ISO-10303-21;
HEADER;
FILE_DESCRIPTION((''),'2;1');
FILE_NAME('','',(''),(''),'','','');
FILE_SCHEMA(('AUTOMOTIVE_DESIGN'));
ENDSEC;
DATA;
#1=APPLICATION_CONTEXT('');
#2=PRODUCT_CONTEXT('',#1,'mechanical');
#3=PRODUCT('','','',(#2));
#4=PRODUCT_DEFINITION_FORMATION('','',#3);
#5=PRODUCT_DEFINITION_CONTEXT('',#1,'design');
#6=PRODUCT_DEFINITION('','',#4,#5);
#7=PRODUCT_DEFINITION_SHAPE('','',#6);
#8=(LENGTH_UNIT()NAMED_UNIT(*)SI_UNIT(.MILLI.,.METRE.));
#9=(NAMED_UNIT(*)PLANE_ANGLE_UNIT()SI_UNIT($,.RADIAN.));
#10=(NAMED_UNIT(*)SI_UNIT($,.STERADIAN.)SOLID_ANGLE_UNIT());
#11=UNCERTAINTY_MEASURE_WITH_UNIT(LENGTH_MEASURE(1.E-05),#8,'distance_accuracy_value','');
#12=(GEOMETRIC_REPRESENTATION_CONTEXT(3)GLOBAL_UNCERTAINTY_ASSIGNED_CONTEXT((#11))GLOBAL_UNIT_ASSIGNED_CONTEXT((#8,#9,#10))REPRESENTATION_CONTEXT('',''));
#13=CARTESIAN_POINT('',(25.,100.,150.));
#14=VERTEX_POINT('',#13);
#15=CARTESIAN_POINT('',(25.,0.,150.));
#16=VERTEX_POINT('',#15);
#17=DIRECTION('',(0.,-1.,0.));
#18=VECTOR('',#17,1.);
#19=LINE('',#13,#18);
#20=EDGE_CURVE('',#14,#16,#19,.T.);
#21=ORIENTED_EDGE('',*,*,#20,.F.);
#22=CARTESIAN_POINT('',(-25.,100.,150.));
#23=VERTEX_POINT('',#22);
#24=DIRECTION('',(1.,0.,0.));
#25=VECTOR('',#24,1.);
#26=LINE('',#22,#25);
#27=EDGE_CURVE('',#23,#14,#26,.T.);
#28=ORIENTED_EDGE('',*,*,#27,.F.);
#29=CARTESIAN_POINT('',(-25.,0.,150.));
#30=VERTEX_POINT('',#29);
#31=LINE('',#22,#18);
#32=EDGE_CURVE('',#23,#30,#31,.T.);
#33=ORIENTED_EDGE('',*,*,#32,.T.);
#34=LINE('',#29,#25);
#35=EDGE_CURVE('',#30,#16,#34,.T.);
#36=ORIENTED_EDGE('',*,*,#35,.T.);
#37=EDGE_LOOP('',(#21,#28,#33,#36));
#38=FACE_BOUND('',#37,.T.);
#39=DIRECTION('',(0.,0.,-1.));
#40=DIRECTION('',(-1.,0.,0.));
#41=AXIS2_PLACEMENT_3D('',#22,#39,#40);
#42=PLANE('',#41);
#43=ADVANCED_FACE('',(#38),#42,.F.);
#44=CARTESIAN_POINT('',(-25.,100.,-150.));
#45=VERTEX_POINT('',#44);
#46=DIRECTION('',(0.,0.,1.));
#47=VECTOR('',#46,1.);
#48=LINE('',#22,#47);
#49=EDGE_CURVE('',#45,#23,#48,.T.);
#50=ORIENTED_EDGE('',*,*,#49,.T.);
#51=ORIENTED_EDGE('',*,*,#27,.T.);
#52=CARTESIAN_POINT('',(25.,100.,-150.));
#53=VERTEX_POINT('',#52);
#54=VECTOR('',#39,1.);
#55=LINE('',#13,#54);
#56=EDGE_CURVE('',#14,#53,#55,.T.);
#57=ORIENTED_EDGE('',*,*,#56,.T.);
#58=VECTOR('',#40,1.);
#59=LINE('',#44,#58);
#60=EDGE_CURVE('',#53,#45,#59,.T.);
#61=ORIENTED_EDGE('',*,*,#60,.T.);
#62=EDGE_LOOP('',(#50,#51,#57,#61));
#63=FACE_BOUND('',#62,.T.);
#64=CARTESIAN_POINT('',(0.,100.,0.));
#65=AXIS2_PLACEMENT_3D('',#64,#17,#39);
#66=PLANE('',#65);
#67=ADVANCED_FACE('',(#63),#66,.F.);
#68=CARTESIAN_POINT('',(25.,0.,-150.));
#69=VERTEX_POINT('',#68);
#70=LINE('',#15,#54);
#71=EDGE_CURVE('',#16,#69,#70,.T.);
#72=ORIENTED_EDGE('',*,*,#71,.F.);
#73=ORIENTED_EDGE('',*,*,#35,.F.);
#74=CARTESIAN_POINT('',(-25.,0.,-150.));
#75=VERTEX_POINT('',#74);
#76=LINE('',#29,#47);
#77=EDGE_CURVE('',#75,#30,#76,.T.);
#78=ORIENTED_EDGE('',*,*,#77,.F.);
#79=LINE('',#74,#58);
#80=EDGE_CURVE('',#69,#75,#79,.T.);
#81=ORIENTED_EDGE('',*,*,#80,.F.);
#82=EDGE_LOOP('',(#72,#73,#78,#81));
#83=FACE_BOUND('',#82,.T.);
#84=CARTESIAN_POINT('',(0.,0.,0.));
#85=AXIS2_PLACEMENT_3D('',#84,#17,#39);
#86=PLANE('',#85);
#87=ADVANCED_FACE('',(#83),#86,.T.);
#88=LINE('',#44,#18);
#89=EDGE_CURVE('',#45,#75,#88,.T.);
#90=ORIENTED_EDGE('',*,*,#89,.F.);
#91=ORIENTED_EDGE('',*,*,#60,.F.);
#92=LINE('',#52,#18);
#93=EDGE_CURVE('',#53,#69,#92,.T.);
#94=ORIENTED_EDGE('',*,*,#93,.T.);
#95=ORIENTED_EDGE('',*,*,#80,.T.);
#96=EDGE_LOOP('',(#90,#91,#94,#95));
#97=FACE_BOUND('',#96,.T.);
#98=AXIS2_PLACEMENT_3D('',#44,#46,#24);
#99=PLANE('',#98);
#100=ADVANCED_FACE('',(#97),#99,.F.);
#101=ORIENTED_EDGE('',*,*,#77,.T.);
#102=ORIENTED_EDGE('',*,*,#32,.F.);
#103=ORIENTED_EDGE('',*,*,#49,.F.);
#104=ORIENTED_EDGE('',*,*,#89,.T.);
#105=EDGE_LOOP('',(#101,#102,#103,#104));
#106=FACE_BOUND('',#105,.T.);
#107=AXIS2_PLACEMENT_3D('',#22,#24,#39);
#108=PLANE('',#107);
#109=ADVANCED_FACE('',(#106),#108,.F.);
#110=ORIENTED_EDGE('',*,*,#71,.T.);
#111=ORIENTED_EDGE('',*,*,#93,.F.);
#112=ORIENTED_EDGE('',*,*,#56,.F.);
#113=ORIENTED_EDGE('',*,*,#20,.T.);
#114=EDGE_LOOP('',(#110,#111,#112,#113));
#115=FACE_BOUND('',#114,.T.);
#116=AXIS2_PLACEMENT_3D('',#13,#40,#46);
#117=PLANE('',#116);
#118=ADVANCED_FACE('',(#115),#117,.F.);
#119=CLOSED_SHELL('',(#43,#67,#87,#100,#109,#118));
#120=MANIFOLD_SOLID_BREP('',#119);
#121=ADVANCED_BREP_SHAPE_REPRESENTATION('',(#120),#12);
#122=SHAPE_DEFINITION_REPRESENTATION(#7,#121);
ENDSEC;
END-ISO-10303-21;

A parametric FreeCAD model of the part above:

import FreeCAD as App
import Part
import Sketcher

V = App.Vector

doc = App.newDocument("Part")
body = doc.addObject("PartDesign::Body", "Body")

sketch1 = body.newObject("Sketcher::SketchObject", "Sketch")
sketch1.AttachmentSupport = (doc.getObject("XZ_Plane"), [""])
sketch1.MapMode = "FlatFace"
sketch1.addGeometry(Part.LineSegment(V(-25, -150, 0), V(-25, 150, 0)), False)
sketch1.addGeometry(Part.LineSegment(V(-25, 150, 0), V(25, 150, 0)), False)
sketch1.addGeometry(Part.LineSegment(V(25, 150, 0), V(25, -150, 0)), False)
sketch1.addGeometry(Part.LineSegment(V(25, -150, 0), V(-25, -150, 0)), False)
sketch1.addConstraint(Sketcher.Constraint("Coincident", 0, 2, 1, 1))
sketch1.addConstraint(Sketcher.Constraint("Coincident", 1, 2, 2, 1))
sketch1.addConstraint(Sketcher.Constraint("Coincident", 2, 2, 3, 1))
sketch1.addConstraint(Sketcher.Constraint("Coincident", 3, 2, 0, 1))
sketch1.addConstraint(Sketcher.Constraint("Vertical", 0))
sketch1.addConstraint(Sketcher.Constraint("Horizontal", 1))
sketch1.addConstraint(Sketcher.Constraint("Vertical", 2))
sketch1.addConstraint(Sketcher.Constraint("Horizontal", 3))
sketch1.addConstraint(Sketcher.Constraint("Symmetric", 0, 2, 2, 2, -1, 1))
sketch1.addConstraint(Sketcher.Constraint("DistanceX", 1, 1, 1, 2, 50.0))
sketch1.addConstraint(Sketcher.Constraint("DistanceY", 0, 1, 0, 2, 300.0))
pad1 = body.newObject("PartDesign::Pad", "Pad")
pad1.Profile = sketch1
pad1.Length = 100
pad1.Reversed = True

doc.recompute()
